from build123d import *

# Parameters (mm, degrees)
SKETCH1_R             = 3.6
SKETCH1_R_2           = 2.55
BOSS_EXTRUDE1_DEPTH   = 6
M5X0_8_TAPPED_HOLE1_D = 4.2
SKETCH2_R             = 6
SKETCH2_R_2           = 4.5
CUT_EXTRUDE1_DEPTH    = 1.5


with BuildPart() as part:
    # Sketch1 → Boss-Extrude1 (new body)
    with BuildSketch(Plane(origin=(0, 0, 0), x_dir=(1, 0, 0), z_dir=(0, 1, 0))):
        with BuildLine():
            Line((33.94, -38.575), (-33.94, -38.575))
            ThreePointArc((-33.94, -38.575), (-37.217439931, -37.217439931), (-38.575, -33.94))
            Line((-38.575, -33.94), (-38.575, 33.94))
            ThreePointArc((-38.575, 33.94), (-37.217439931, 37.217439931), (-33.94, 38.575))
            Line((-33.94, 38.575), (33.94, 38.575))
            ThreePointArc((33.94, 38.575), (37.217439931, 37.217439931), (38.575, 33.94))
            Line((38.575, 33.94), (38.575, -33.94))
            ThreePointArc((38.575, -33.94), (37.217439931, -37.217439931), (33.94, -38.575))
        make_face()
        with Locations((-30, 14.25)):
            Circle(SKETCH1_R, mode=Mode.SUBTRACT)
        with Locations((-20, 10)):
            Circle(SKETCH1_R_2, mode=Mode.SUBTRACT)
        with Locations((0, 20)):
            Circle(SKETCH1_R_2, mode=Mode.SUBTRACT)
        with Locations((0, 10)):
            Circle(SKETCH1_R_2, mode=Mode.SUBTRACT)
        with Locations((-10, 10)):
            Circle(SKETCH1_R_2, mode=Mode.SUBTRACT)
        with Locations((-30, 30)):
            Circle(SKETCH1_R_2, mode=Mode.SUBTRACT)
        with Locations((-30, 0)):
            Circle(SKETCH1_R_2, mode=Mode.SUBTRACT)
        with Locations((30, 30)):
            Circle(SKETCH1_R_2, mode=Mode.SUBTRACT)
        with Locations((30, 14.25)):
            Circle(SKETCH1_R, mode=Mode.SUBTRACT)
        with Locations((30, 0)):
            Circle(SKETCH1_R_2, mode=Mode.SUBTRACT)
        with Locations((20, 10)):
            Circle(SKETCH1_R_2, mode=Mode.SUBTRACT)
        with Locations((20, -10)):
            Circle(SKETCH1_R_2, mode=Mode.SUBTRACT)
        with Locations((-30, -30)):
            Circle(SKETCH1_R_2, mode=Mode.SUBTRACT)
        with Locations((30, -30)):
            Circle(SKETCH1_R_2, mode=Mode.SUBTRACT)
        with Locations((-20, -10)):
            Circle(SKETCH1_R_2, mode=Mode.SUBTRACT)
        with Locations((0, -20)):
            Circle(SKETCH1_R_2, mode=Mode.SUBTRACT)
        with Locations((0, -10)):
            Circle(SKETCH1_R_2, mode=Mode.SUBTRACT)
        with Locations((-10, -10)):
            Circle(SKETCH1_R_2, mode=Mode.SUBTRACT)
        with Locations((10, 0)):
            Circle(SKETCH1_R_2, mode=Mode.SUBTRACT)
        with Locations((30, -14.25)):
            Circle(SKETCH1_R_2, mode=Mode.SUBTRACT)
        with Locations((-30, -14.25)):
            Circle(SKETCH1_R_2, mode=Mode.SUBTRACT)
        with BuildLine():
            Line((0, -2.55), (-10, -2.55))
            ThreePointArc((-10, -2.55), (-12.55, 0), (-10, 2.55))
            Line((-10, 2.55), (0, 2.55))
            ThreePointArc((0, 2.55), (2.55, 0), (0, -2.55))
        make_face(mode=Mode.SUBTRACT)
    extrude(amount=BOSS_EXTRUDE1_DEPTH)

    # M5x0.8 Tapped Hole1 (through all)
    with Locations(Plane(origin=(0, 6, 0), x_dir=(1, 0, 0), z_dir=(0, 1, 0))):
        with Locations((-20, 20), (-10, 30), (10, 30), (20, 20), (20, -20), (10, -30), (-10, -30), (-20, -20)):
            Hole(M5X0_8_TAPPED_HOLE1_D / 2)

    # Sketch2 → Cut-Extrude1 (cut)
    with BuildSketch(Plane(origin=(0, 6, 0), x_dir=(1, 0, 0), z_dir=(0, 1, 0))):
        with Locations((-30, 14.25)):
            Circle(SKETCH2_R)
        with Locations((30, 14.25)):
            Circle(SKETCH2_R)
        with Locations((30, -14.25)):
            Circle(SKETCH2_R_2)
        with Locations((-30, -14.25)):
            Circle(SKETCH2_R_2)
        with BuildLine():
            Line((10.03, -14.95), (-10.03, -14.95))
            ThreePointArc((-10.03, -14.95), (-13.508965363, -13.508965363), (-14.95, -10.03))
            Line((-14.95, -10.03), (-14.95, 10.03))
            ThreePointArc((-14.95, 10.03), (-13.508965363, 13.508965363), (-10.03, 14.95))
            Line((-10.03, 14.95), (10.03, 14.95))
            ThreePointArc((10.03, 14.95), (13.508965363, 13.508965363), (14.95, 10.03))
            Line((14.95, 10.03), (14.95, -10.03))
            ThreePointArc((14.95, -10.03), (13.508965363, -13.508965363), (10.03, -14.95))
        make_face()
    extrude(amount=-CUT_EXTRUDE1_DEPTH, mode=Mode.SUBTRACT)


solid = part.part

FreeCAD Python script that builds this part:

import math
import FreeCAD as App
import Part
import Sketcher
from FreeCAD import Vector
Q = App.Units.Quantity

doc = App.newDocument("Part")
body = doc.addObject("PartDesign::Body", "Body")

sketch1 = body.newObject("Sketcher::SketchObject", "Sketch")
sketch1.AttachmentSupport = (doc.getObject("XZ_Plane"), [""])
sketch1.MapMode = "FlatFace"
sketch1.addGeometry(Part.LineSegment(Vector(-33.9, 38.6, 0), Vector(33.9, 38.6, 0)), False)
sketch1.addGeometry(Part.ArcOfCircle(Part.Circle(Vector(33.9, 33.9, 0), Vector(0, 0, 1), 4.6), math.radians(0), math.radians(90)), False)
sketch1.addGeometry(Part.LineSegment(Vector(38.6, 33.9, 0), Vector(38.6, -33.9, 0)), False)
sketch1.addGeometry(Part.ArcOfCircle(Part.Circle(Vector(33.9, -33.9, 0), Vector(0, 0, 1), 4.6), math.radians(-90), math.radians(0)), False)
sketch1.addGeometry(Part.LineSegment(Vector(33.9, -38.6, 0), Vector(-33.9, -38.6, 0)), False)
sketch1.addGeometry(Part.ArcOfCircle(Part.Circle(Vector(-33.9, -33.9, 0), Vector(0, 0, 1), 4.6), math.radians(180), math.radians(270)), False)
sketch1.addGeometry(Part.LineSegment(Vector(-38.6, -33.9, 0), Vector(-38.6, 33.9, 0)), False)
sketch1.addGeometry(Part.ArcOfCircle(Part.Circle(Vector(-33.9, 33.9, 0), Vector(0, 0, 1), 4.6), math.radians(90), math.radians(180)), False)
sketch1.addGeometry(Part.Circle(Vector(30, 30, 0), Vector(0, 0, 1), 2.5), False)
sketch1.addGeometry(Part.Circle(Vector(0, 20, 0), Vector(0, 0, 1), 2.5), False)
sketch1.addGeometry(Part.Circle(Vector(30, 14.2, 0), Vector(0, 0, 1), 2.5), False)
sketch1.addGeometry(Part.Circle(Vector(20, 10, 0), Vector(0, 0, 1), 2.5), False)
sketch1.addGeometry(Part.Circle(Vector(0, 10, 0), Vector(0, 0, 1), 2.5), False)
sketch1.addGeometry(Part.Circle(Vector(-30, 30, 0), Vector(0, 0, 1), 2.5), False)
sketch1.addGeometry(Part.Circle(Vector(-10, 10, 0), Vector(0, 0, 1), 2.5), False)
sketch1.addGeometry(Part.Circle(Vector(-20, 10, 0), Vector(0, 0, 1), 2.5), False)
sketch1.addGeometry(Part.Circle(Vector(-30, 14.2, 0), Vector(0, 0, 1), 2.5), False)
sketch1.addGeometry(Part.Circle(Vector(30, 0, 0), Vector(0, 0, 1), 2.5), False)
sketch1.addGeometry(Part.Circle(Vector(30, -14.2, 0), Vector(0, 0, 1), 3.6), False)
sketch1.addGeometry(Part.Circle(Vector(20, -10, 0), Vector(0, 0, 1), 2.5), False)
sketch1.addGeometry(Part.Circle(Vector(10, 0, 0), Vector(0, 0, 1), 2.5), False)
sketch1.addGeometry(Part.Circle(Vector(0, -10, 0), Vector(0, 0, 1), 2.5), False)
sketch1.addGeometry(Part.Circle(Vector(30, -30, 0), Vector(0, 0, 1), 2.5), False)
sketch1.addGeometry(Part.Circle(Vector(0, -20, 0), Vector(0, 0, 1), 2.5), False)
sketch1.addGeometry(Part.LineSegment(Vector(0, 2.5, 0), Vector(-10, 2.5, 0)), False)
sketch1.addGeometry(Part.ArcOfCircle(Part.Circle(Vector(-10, 0, 0), Vector(0, 0, 1), 2.5), math.radians(90), math.radians(270)), False)
sketch1.addGeometry(Part.LineSegment(Vector(-10, -2.5, 0), Vector(0, -2.5, 0)), False)
sketch1.addGeometry(Part.ArcOfCircle(Part.Circle(Vector(0, 0, 0), Vector(0, 0, 1), 2.5), math.radians(-90), math.radians(90)), False)
sketch1.addGeometry(Part.Circle(Vector(-10, -10, 0), Vector(0, 0, 1), 2.5), False)
sketch1.addGeometry(Part.Circle(Vector(-30, 0, 0), Vector(0, 0, 1), 2.5), False)
sketch1.addGeometry(Part.Circle(Vector(-20, -10, 0), Vector(0, 0, 1), 2.5), False)
sketch1.addGeometry(Part.Circle(Vector(-30, -14.2, 0), Vector(0, 0, 1), 3.6), False)
sketch1.addGeometry(Part.Circle(Vector(-30, -30, 0), Vector(0, 0, 1), 2.5), False)
sketch1.addConstraint(Sketcher.Constraint("Tangent", 0, 2, 1, 2))
sketch1.addConstraint(Sketcher.Constraint("Tangent", 1, 1, 2, 1))
sketch1.addConstraint(Sketcher.Constraint("Tangent", 2, 2, 3, 2))
sketch1.addConstraint(Sketcher.Constraint("Tangent", 3, 1, 4, 1))
sketch1.addConstraint(Sketcher.Constraint("Tangent", 4, 2, 5, 2))
sketch1.addConstraint(Sketcher.Constraint("Tangent", 5, 1, 6, 1))
sketch1.addConstraint(Sketcher.Constraint("Tangent", 6, 2, 7, 2))
sketch1.addConstraint(Sketcher.Constraint("Tangent", 7, 1, 0, 1))
sketch1.addConstraint(Sketcher.Constraint("Tangent", 24, 2, 25, 1))
sketch1.addConstraint(Sketcher.Constraint("Tangent", 25, 2, 26, 1))
sketch1.addConstraint(Sketcher.Constraint("Tangent", 26, 2, 27, 1))
sketch1.addConstraint(Sketcher.Constraint("Tangent", 27, 2, 24, 1))
sketch1.addConstraint(Sketcher.Constraint("Horizontal", 0))
sketch1.addConstraint(Sketcher.Constraint("Vertical", 2))
sketch1.addConstraint(Sketcher.Constraint("Horizontal", 4))
sketch1.addConstraint(Sketcher.Constraint("Vertical", 6))
sketch1.addConstraint(Sketcher.Constraint("Horizontal", 24))
sketch1.addConstraint(Sketcher.Constraint("Horizontal", 26))
sketch1.addConstraint(Sketcher.Constraint("Coincident", 27, 3, -1, 1))
sketch1.addConstraint(Sketcher.Constraint("Equal", 1, 3))
sketch1.addConstraint(Sketcher.Constraint("Equal", 3, 5))
sketch1.addConstraint(Sketcher.Constraint("Equal", 5, 7))
sketch1.addConstraint(Sketcher.Constraint("Equal", 8, 9))
sketch1.addConstraint(Sketcher.Constraint("Equal", 9, 10))
sketch1.addConstraint(Sketcher.Constraint("Equal", 10, 11))
sketch1.addConstraint(Sketcher.Constraint("Equal", 11, 12))
sketch1.addConstraint(Sketcher.Constraint("Equal", 12, 13))
sketch1.addConstraint(Sketcher.Constraint("Equal", 13, 14))
sketch1.addConstraint(Sketcher.Constraint("Equal", 14, 15))
sketch1.addConstraint(Sketcher.Constraint("Equal", 15, 16))
sketch1.addConstraint(Sketcher.Constraint("Equal", 16, 17))
sketch1.addConstraint(Sketcher.Constraint("Equal", 17, 19))
sketch1.addConstraint(Sketcher.Constraint("Equal", 19, 20))
sketch1.addConstraint(Sketcher.Constraint("Equal", 20, 21))
sketch1.addConstraint(Sketcher.Constraint("Equal", 21, 22))
sketch1.addConstraint(Sketcher.Constraint("Equal", 22, 23))
sketch1.addConstraint(Sketcher.Constraint("Equal", 23, 25))
sketch1.addConstraint(Sketcher.Constraint("Equal", 27, 28))
sketch1.addConstraint(Sketcher.Constraint("Equal", 28, 29))
sketch1.addConstraint(Sketcher.Constraint("Equal", 29, 30))
sketch1.addConstraint(Sketcher.Constraint("Equal", 18, 31))
sketch1.addConstraint(Sketcher.Constraint("Equal", 30, 32))
sketch1.addConstraint(Sketcher.Constraint("Symmetric", 1, 3, 5, 3, -1, 1))
sketch1.addConstraint(Sketcher.Constraint("Symmetric", 16, 3, 18, 3, -1, 1))
sketch1.addConstraint(Sketcher.Constraint("Symmetric", 15, 3, 19, 3, -1, 1))
sketch1.addConstraint(Sketcher.Constraint("Symmetric", 12, 3, 21, 3, -1, 1))
sketch1.addConstraint(Sketcher.Constraint("Symmetric", 13, 3, 22, 3, -1, 1))
sketch1.addConstraint(Sketcher.Constraint("Symmetric", 9, 3, 23, 3, -1, 1))
sketch1.addConstraint(Sketcher.Constraint("Symmetric", 20, 3, 25, 3, -1, 1))
sketch1.addConstraint(Sketcher.Constraint("Symmetric", 17, 3, 29, 3, -1, 1))
sketch1.addConstraint(Sketcher.Constraint("Symmetric", 11, 3, 30, 3, -1, 1))
sketch1.addConstraint(Sketcher.Constraint("Symmetric", 10, 3, 31, 3, -1, 1))
sketch1.addConstraint(Sketcher.Constraint("Symmetric", 8, 3, 32, 3, -1, 1))
sketch1.addConstraint(Sketcher.Constraint("Symmetric", 8, 3, 13, 3, -2))
sketch1.addConstraint(Sketcher.Constraint("Symmetric", 11, 3, 15, 3, -2))
sketch1.addConstraint(Sketcher.Constraint("Symmetric", 10, 3, 16, 3, -2))
sketch1.addConstraint(Sketcher.Constraint("Symmetric", 14, 3, 28, 3, -1))
sketch1.addConstraint(Sketcher.Constraint("PointOnObject", 9, 3, -2))
sketch1.addConstraint(Sketcher.Constraint("PointOnObject", 12, 3, -2))
sketch1.addConstraint(Sketcher.Constraint("PointOnObject", 17, 3, -1))
sketch1.addConstraint(Sketcher.Constraint("Horizontal", 11, 3, 12, 3))
sketch1.addConstraint(Sketcher.Constraint("Horizontal", 12, 3, 14, 3))
sketch1.addConstraint(Sketcher.Constraint("Vertical", 8, 3, 10, 3))
sketch1.addConstraint(Sketcher.Constraint("Vertical", 10, 3, 17, 3))
sketch1.addConstraint(Sketcher.Constraint("Vertical", 14, 3, 25, 3))
sketch1.addConstraint(Sketcher.Constraint("Equal", 4, 2))
sketch1.addConstraint(Sketcher.Constraint("Diameter", 8, Q("5.1 mm")))
sketch1.addConstraint(Sketcher.Constraint("Diameter", 18, Q("7.2 mm")))
sketch1.addConstraint(Sketcher.Constraint("DistanceX", 24, 2, 24, 1, Q("10 mm")))
sketch1.addConstraint(Sketcher.Constraint("DistanceX", -1, 1, 8, 3, Q("30 mm")))
sketch1.addConstraint(Sketcher.Constraint("DistanceY", -1, 1, 8, 3, Q("30 mm")))
sketch1.addConstraint(Sketcher.Constraint("DistanceY", -1, 1, 9, 3, Q("20 mm")))
sketch1.addConstraint(Sketcher.Constraint("DistanceX", -1, 1, 11, 3, Q("20 mm")))
sketch1.addConstraint(Sketcher.Constraint("DistanceY", -1, 1, 11, 3, Q("10 mm")))
sketch1.addConstraint(Sketcher.Constraint("Radius", 1, Q("4.635 mm")))
sketch1.addConstraint(Sketcher.Constraint("DistanceX", 0, 1, 0, 2, Q("67.88 mm")))
sketch1.addConstraint(Sketcher.Constraint("DistanceY", 18, 3, 10, 3, Q("28.5 mm")))
pad1 = body.newObject("PartDesign::Pad", "Pad")
pad1.Profile = sketch1
pad1.Length = 6
pad1.Reversed = True

sketch2 = body.newObject("Sketcher::SketchObject", "Sketch001")
sketch2.AttachmentSupport = (doc.getObject("XZ_Plane"), [""])
sketch2.MapMode = "FlatFace"
sketch2.AttachmentOffset = App.Placement(Vector(0, 0, -6), App.Rotation())
sketch2.addGeometry(Part.Circle(Vector(-20, -20, 0), Vector(0, 0, 1), 2.1), False)
sketch2.addGeometry(Part.Circle(Vector(-10, -30, 0), Vector(0, 0, 1), 2.1), False)
sketch2.addGeometry(Part.Circle(Vector(10, -30, 0), Vector(0, 0, 1), 2.1), False)
sketch2.addGeometry(Part.Circle(Vector(20, -20, 0), Vector(0, 0, 1), 2.1), False)
sketch2.addGeometry(Part.Circle(Vector(20, 20, 0), Vector(0, 0, 1), 2.1), False)
sketch2.addGeometry(Part.Circle(Vector(10, 30, 0), Vector(0, 0, 1), 2.1), False)
sketch2.addGeometry(Part.Circle(Vector(-10, 30, 0), Vector(0, 0, 1), 2.1), False)
sketch2.addGeometry(Part.Circle(Vector(-20, 20, 0), Vector(0, 0, 1), 2.1), False)
sketch2.addConstraint(Sketcher.Constraint("Equal", 0, 1))
sketch2.addConstraint(Sketcher.Constraint("Equal", 1, 2))
sketch2.addConstraint(Sketcher.Constraint("Equal", 2, 3))
sketch2.addConstraint(Sketcher.Constraint("Equal", 3, 4))
sketch2.addConstraint(Sketcher.Constraint("Equal", 4, 5))
sketch2.addConstraint(Sketcher.Constraint("Equal", 5, 6))
sketch2.addConstraint(Sketcher.Constraint("Equal", 6, 7))
sketch2.addConstraint(Sketcher.Constraint("Symmetric", 0, 3, 4, 3, -1, 1))
sketch2.addConstraint(Sketcher.Constraint("Symmetric", 1, 3, 5, 3, -1, 1))
sketch2.addConstraint(Sketcher.Constraint("Symmetric", 2, 3, 6, 3, -1, 1))
sketch2.addConstraint(Sketcher.Constraint("Symmetric", 3, 3, 7, 3, -1, 1))
sketch2.addConstraint(Sketcher.Constraint("Symmetric", 1, 3, 2, 3, -2))
sketch2.addConstraint(Sketcher.Constraint("Symmetric", 0, 3, 3, 3, -2))
sketch2.addConstraint(Sketcher.Constraint("Diameter", 0, Q("4.2 mm")))
sketch2.addConstraint(Sketcher.Constraint("DistanceX", 0, 3, -1, 1, Q("20 mm")))
sketch2.addConstraint(Sketcher.Constraint("DistanceY", 0, 3, -1, 1, Q("20 mm")))
sketch2.addConstraint(Sketcher.Constraint("DistanceX", 1, 3, -1, 1, Q("10 mm")))
sketch2.addConstraint(Sketcher.Constraint("DistanceY", 1, 3, -1, 1, Q("30 mm")))
doc.recompute()
hole = body.newObject("PartDesign::Hole", "Hole")
hole.Profile = sketch2
hole.ThreadType = "None"
hole.Diameter = 4.2
hole.DepthType = "ThroughAll"
hole.Reversed = True

sketch3 = body.newObject("Sketcher::SketchObject", "Sketch002")
sketch3.AttachmentSupport = (doc.getObject("XZ_Plane"), [""])
sketch3.MapMode = "FlatFace"
sketch3.AttachmentOffset = App.Placement(Vector(0, 0, -6), App.Rotation())
sketch3.addGeometry(Part.Circle(Vector(-30, -14.2, 0), Vector(0, 0, 1), 6), False)
sketch3.addGeometry(Part.Circle(Vector(30, -14.2, 0), Vector(0, 0, 1), 6), False)
sketch3.addGeometry(Part.Circle(Vector(30, 14.2, 0), Vector(0, 0, 1), 4.5), False)
sketch3.addGeometry(Part.Circle(Vector(-30, 14.2, 0), Vector(0, 0, 1), 4.5), False)
sketch3.addGeometry(Part.LineSegment(Vector(-10, 14.9, 0), Vector(10, 14.9, 0)), False)
sketch3.addGeometry(Part.ArcOfCircle(Part.Circle(Vector(10, 10, 0), Vector(0, 0, 1), 4.9), math.radians(0), math.radians(90)), False)
sketch3.addGeometry(Part.LineSegment(Vector(14.9, 10, 0), Vector(14.9, -10, 0)), False)
sketch3.addGeometry(Part.ArcOfCircle(Part.Circle(Vector(10, -10, 0), Vector(0, 0, 1), 4.9), math.radians(-90), math.radians(0)), False)
sketch3.addGeometry(Part.LineSegment(Vector(10, -14.9, 0), Vector(-10, -14.9, 0)), False)
sketch3.addGeometry(Part.ArcOfCircle(Part.Circle(Vector(-10, -10, 0), Vector(0, 0, 1), 4.9), math.radians(-180), math.radians(-90)), False)
sketch3.addGeometry(Part.LineSegment(Vector(-14.9, -10, 0), Vector(-14.9, 10, 0)), False)
sketch3.addGeometry(Part.ArcOfCircle(Part.Circle(Vector(-10, 10, 0), Vector(0, 0, 1), 4.9), math.radians(90), math.radians(180)), False)
sketch3.addConstraint(Sketcher.Constraint("Tangent", 4, 2, 5, 2))
sketch3.addConstraint(Sketcher.Constraint("Tangent", 5, 1, 6, 1))
sketch3.addConstraint(Sketcher.Constraint("Tangent", 6, 2, 7, 2))
sketch3.addConstraint(Sketcher.Constraint("Tangent", 7, 1, 8, 1))
sketch3.addConstraint(Sketcher.Constraint("Tangent", 8, 2, 9, 2))
sketch3.addConstraint(Sketcher.Constraint("Tangent", 9, 1, 10, 1))
sketch3.addConstraint(Sketcher.Constraint("Tangent", 10, 2, 11, 2))
sketch3.addConstraint(Sketcher.Constraint("Tangent", 11, 1, 4, 1))
sketch3.addConstraint(Sketcher.Constraint("Horizontal", 4))
sketch3.addConstraint(Sketcher.Constraint("Vertical", 6))
sketch3.addConstraint(Sketcher.Constraint("Horizontal", 8))
sketch3.addConstraint(Sketcher.Constraint("Vertical", 10))
sketch3.addConstraint(Sketcher.Constraint("Equal", 0, 1))
sketch3.addConstraint(Sketcher.Constraint("Equal", 2, 3))
sketch3.addConstraint(Sketcher.Constraint("Equal", 5, 7))
sketch3.addConstraint(Sketcher.Constraint("Equal", 7, 9))
sketch3.addConstraint(Sketcher.Constraint("Equal", 9, 11))
sketch3.addConstraint(Sketcher.Constraint("Symmetric", 0, 3, 2, 3, -1, 1))
sketch3.addConstraint(Sketcher.Constraint("Symmetric", 1, 3, 3, 3, -1, 1))
sketch3.addConstraint(Sketcher.Constraint("Symmetric", 5, 3, 9, 3, -1, 1))
sketch3.addConstraint(Sketcher.Constraint("Symmetric", 0, 3, 1, 3, -2))
sketch3.addConstraint(Sketcher.Constraint("Equal", 8, 6))
sketch3.addConstraint(Sketcher.Constraint("Diameter", 0, Q("12 mm")))
sketch3.addConstraint(Sketcher.Constraint("Diameter", 2, Q("9 mm")))
sketch3.addConstraint(Sketcher.Constraint("Radius", 5, Q("4.92 mm")))
sketch3.addConstraint(Sketcher.Constraint("DistanceX", 0, 3, -1, 1, Q("30 mm")))
sketch3.addConstraint(Sketcher.Constraint("DistanceX", 4, 1, 4, 2, Q("20.06 mm")))
sketch3.addConstraint(Sketcher.Constraint("DistanceY", 1, 3, 2, 3, Q("28.5 mm")))
pocket1 = body.newObject("PartDesign::Pocket", "Pocket")
pocket1.Profile = sketch3
pocket1.Length = 1.5
pocket1.Reversed = True

doc.recompute()
